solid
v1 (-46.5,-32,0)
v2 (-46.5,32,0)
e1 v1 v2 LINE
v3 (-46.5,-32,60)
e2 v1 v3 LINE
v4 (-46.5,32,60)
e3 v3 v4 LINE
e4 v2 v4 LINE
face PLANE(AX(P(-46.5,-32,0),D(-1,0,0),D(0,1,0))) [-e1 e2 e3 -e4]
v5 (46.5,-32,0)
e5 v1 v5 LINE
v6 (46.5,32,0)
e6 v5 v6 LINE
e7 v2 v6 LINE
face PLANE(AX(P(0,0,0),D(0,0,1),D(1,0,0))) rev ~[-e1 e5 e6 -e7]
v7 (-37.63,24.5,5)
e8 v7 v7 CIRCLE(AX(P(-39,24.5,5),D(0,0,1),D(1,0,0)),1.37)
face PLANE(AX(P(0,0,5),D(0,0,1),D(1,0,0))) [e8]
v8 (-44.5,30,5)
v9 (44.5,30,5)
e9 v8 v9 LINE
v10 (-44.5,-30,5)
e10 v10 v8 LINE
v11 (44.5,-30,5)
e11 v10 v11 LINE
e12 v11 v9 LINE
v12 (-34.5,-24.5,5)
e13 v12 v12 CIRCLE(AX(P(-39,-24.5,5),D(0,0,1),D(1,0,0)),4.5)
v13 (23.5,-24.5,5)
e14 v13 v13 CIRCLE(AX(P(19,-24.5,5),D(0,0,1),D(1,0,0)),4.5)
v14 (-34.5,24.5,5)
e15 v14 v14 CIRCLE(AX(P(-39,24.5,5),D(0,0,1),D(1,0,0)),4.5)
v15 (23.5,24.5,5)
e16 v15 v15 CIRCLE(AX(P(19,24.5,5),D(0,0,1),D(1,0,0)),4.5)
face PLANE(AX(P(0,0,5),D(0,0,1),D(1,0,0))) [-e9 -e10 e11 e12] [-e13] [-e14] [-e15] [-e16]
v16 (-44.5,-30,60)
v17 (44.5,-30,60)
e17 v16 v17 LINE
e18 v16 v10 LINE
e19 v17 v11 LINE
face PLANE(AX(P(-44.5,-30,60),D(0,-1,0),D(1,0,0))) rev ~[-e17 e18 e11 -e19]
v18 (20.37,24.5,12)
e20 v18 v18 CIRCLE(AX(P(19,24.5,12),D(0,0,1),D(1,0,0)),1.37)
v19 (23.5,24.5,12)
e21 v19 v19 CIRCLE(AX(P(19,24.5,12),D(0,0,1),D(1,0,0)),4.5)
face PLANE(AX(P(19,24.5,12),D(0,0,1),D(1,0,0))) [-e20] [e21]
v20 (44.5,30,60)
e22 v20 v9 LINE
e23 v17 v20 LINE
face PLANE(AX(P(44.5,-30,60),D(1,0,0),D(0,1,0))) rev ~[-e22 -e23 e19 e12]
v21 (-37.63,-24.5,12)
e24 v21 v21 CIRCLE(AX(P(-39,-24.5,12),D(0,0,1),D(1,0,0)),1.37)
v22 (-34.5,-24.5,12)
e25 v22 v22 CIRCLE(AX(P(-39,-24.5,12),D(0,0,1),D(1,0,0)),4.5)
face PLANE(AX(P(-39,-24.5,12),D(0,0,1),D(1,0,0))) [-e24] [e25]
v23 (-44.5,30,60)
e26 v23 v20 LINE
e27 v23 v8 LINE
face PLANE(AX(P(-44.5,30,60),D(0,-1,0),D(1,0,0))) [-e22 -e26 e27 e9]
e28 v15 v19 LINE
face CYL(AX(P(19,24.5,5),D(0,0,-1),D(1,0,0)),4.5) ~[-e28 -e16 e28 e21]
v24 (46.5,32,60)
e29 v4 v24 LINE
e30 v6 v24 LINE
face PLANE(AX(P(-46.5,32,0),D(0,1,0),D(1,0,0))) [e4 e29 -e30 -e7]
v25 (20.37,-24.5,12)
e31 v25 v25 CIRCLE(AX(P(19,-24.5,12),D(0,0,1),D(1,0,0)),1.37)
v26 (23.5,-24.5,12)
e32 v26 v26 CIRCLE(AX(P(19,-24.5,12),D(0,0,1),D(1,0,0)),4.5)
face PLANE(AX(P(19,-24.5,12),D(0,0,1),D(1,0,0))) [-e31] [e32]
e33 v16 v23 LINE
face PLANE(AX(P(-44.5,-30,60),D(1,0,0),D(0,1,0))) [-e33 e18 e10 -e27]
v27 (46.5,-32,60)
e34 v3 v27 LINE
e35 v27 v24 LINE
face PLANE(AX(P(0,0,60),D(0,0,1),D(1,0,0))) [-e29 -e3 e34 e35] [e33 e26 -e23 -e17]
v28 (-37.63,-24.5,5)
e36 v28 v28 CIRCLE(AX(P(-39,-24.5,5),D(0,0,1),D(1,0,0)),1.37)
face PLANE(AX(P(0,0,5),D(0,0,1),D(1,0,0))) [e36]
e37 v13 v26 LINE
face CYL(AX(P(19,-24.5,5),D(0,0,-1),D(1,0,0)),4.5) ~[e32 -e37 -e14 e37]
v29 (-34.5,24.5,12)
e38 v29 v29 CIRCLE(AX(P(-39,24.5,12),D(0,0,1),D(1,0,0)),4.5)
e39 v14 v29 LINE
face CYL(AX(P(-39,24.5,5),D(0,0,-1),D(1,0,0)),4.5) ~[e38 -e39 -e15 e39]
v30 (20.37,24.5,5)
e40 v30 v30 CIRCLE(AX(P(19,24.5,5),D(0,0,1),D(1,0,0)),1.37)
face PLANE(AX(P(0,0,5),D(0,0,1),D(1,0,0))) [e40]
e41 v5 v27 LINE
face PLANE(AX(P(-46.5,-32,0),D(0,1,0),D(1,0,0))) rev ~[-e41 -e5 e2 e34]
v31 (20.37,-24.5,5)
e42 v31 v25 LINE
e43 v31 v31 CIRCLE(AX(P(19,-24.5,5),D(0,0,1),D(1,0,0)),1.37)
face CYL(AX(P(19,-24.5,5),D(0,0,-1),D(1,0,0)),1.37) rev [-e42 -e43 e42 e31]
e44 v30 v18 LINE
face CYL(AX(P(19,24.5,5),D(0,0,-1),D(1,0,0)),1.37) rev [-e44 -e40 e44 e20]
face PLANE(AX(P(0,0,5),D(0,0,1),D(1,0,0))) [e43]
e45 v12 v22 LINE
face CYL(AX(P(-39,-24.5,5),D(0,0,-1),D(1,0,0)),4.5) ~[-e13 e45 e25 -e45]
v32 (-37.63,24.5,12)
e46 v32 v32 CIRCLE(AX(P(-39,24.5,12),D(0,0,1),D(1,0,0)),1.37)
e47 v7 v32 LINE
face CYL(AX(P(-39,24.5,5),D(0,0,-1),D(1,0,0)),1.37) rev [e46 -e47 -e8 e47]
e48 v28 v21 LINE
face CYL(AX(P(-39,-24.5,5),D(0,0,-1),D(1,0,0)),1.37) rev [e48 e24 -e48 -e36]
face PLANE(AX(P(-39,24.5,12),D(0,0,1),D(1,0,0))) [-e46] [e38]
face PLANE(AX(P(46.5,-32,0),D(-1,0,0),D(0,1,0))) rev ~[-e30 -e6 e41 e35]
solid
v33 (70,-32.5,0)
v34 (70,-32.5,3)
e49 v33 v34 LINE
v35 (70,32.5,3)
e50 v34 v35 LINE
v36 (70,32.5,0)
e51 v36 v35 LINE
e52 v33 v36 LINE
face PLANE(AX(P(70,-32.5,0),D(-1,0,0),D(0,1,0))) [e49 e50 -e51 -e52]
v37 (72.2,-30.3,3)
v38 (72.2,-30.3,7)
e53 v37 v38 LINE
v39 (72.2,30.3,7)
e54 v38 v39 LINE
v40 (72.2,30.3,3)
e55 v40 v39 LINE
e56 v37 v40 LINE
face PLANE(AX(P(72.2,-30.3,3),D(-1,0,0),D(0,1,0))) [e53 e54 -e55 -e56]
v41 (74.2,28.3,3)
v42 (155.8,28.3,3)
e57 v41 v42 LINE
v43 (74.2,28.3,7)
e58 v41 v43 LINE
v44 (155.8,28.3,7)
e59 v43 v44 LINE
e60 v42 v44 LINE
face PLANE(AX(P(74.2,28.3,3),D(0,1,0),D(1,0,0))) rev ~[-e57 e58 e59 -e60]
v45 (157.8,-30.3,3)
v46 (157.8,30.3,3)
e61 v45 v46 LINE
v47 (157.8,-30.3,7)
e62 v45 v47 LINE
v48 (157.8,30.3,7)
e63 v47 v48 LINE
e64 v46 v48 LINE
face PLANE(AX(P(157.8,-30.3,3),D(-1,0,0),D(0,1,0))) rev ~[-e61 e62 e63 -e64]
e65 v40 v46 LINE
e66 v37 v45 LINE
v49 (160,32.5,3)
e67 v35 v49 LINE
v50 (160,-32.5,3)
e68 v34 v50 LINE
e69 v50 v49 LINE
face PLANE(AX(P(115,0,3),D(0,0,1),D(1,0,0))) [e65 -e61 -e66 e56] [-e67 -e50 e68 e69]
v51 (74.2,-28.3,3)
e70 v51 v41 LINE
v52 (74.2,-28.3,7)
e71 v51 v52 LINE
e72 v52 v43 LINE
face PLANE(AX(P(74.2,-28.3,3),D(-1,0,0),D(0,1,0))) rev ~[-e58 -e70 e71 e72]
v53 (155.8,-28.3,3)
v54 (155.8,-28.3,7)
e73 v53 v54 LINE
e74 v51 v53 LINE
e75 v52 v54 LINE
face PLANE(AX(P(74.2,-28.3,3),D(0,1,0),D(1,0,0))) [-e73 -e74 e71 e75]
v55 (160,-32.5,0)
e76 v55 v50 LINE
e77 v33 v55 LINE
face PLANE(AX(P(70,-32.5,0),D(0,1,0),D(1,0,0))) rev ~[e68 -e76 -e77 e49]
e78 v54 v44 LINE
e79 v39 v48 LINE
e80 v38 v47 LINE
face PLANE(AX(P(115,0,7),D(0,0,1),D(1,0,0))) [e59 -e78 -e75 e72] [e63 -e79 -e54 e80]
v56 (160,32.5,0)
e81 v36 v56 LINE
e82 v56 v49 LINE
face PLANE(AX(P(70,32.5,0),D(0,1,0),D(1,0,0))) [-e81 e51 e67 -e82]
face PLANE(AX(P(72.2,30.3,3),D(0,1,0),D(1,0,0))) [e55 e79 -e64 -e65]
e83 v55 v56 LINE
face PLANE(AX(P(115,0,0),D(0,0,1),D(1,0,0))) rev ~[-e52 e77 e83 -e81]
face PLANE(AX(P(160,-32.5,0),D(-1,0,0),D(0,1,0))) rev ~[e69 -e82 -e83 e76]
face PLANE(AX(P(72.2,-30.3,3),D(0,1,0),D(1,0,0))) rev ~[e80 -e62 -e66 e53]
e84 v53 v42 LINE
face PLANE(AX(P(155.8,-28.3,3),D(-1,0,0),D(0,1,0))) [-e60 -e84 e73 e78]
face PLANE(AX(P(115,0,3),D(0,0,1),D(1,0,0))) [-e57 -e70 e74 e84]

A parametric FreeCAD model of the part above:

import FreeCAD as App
import Part
import Sketcher

V = App.Vector
Q = App.Units.Quantity

doc = App.newDocument("Part")
params = doc.addObject("Spreadsheet::Sheet", "Params")
for row, (alias, value) in enumerate([
    ("sketch1_width", "93 mm"),
    ("sketch1_height", "64 mm"),
    ("pad1_length", "60 mm"),
    ("sketch2_width", "89 mm"),
    ("sketch2_height", "60 mm"),
    ("pocket1_length", "55 mm"),
    ("sketch3_diameter", "9 mm"),
    ("sketch3_diameter2", "2.74 mm"),
    ("pad2_length", "7 mm"),
    ("sketch4_width", "90 mm"),
    ("sketch4_height", "65 mm"),
    ("pad3_length", "3 mm"),
    ("sketch5_width", "85.6 mm"),
    ("sketch5_width2", "81.6 mm"),
    ("sketch5_height", "60.6 mm"),
    ("sketch5_height2", "56.6 mm"),
    ("pad4_length", "4 mm"),
], start=1):
    params.set(f"A{row}", alias)
    params.set(f"B{row}", "=" + value)
    params.setAlias(f"B{row}", alias)

body = doc.addObject("PartDesign::Body", "Body")

sketch1 = doc.addObject("Sketcher::SketchObject", "Sketch")
body.addObject(sketch1)
sketch1.AttachmentSupport = (doc.XY_Plane, [""])
sketch1.MapMode = "FlatFace"
sketch1.addGeometry([
    Part.LineSegment(V(-46, 32, 0), V(-46, -32, 0)),
    Part.LineSegment(V(-46, -32, 0), V(46, -32, 0)),
    Part.LineSegment(V(46, -32, 0), V(46, 32, 0)),
    Part.LineSegment(V(46, 32, 0), V(-46, 32, 0)),
], False)
sketch1.addConstraint([
    Sketcher.Constraint("Coincident", 0, 2, 1, 1),
    Sketcher.Constraint("Coincident", 1, 2, 2, 1),
    Sketcher.Constraint("Coincident", 2, 2, 3, 1),
    Sketcher.Constraint("Coincident", 3, 2, 0, 1),
    Sketcher.Constraint("Vertical", 0),
    Sketcher.Constraint("Horizontal", 1),
    Sketcher.Constraint("Vertical", 2),
    Sketcher.Constraint("Horizontal", 3),
    Sketcher.Constraint("Symmetric", 0, 2, 2, 2, -1, 1),
    Sketcher.Constraint("DistanceX", 1, 1, 1, 2, Q("93 mm")),
    Sketcher.Constraint("DistanceY", 0, 2, 0, 1, Q("64 mm")),
])
sketch1.setExpression("Constraints[9]", "Params.sketch1_width")
sketch1.setExpression("Constraints[10]", "Params.sketch1_height")
pad1 = doc.addObject("PartDesign::Pad", "Pad")
body.addObject(pad1)
pad1.Profile = sketch1
pad1.setExpression("Length", "Params.pad1_length")

sketch2 = doc.addObject("Sketcher::SketchObject", "Sketch001")
body.addObject(sketch2)
sketch2.AttachmentSupport = (doc.XY_Plane, [""])
sketch2.MapMode = "FlatFace"
sketch2.AttachmentOffset = App.Placement(V(0, 0, 60), App.Rotation())
sketch2.addGeometry([
    Part.LineSegment(V(-44, 30, 0), V(-44, -30, 0)),
    Part.LineSegment(V(-44, -30, 0), V(44, -30, 0)),
    Part.LineSegment(V(44, -30, 0), V(44, 30, 0)),
    Part.LineSegment(V(44, 30, 0), V(-44, 30, 0)),
], False)
sketch2.addConstraint([
    Sketcher.Constraint("Coincident", 0, 2, 1, 1),
    Sketcher.Constraint("Coincident", 1, 2, 2, 1),
    Sketcher.Constraint("Coincident", 2, 2, 3, 1),
    Sketcher.Constraint("Coincident", 3, 2, 0, 1),
    Sketcher.Constraint("Vertical", 0),
    Sketcher.Constraint("Horizontal", 1),
    Sketcher.Constraint("Vertical", 2),
    Sketcher.Constraint("Horizontal", 3),
    Sketcher.Constraint("Symmetric", 0, 2, 2, 2, -1, 1),
    Sketcher.Constraint("DistanceX", 1, 1, 1, 2, Q("89 mm")),
    Sketcher.Constraint("DistanceY", 0, 2, 0, 1, Q("60 mm")),
])
sketch2.setExpression("Constraints[9]", "Params.sketch2_width")
sketch2.setExpression("Constraints[10]", "Params.sketch2_height")
pocket1 = doc.addObject("PartDesign::Pocket", "Pocket")
body.addObject(pocket1)
pocket1.Profile = sketch2
pocket1.setExpression("Length", "Params.pocket1_length")

sketch3 = doc.addObject("Sketcher::SketchObject", "Sketch002")
body.addObject(sketch3)
sketch3.AttachmentSupport = (doc.XY_Plane, [""])
sketch3.MapMode = "FlatFace"
sketch3.AttachmentOffset = App.Placement(V(0, 0, 5), App.Rotation())
sketch3.addGeometry([
    Part.Circle(V(-39, 24.5, 0), V(0, 0, 1), 4.5),
    Part.Circle(V(-39, 24.5, 0), V(0, 0, 1), 1.4),
    Part.Circle(V(19, 24.5, 0), V(0, 0, 1), 4.5),
    Part.Circle(V(19, 24.5, 0), V(0, 0, 1), 1.4),
    Part.Circle(V(-39, -24.5, 0), V(0, 0, 1), 4.5),
    Part.Circle(V(-39, -24.5, 0), V(0, 0, 1), 1.4),
    Part.Circle(V(19, -24.5, 0), V(0, 0, 1), 4.5),
    Part.Circle(V(19, -24.5, 0), V(0, 0, 1), 1.4),
], False)
sketch3.addConstraint([
    Sketcher.Constraint("Coincident", 1, 3, 0, 3),
    Sketcher.Constraint("Coincident", 3, 3, 2, 3),
    Sketcher.Constraint("Coincident", 5, 3, 4, 3),
    Sketcher.Constraint("Coincident", 7, 3, 6, 3),
    Sketcher.Constraint("Equal", 0, 2),
    Sketcher.Constraint("Equal", 1, 3),
    Sketcher.Constraint("Equal", 2, 4),
    Sketcher.Constraint("Equal", 3, 5),
    Sketcher.Constraint("Equal", 4, 6),
    Sketcher.Constraint("Equal", 5, 7),
    Sketcher.Constraint("Symmetric", 0, 3, 4, 3, -1),
    Sketcher.Constraint("Symmetric", 2, 3, 6, 3, -1),
    Sketcher.Constraint("Horizontal", 1, 3, 2, 3),
    Sketcher.Constraint("Diameter", 0, Q("9 mm")),
    Sketcher.Constraint("Diameter", 1, Q("2.74 mm")),
    Sketcher.Constraint("DistanceX", 0, 3, -1, 1, Q("39 mm")),
    Sketcher.Constraint("DistanceX", -1, 1, 2, 3, Q("19 mm")),
    Sketcher.Constraint("DistanceY", 4, 3, 0, 3, Q("49 mm")),
])
sketch3.setExpression("Constraints[13]", "Params.sketch3_diameter")
sketch3.setExpression("Constraints[14]", "Params.sketch3_diameter2")
pad2 = doc.addObject("PartDesign::Pad", "Pad001")
body.addObject(pad2)
pad2.Profile = sketch3
pad2.setExpression("Length", "Params.pad2_length")
body2 = doc.addObject("PartDesign::Body", "Body001")

sketch4 = doc.addObject("Sketcher::SketchObject", "Sketch003")
body2.addObject(sketch4)
sketch4.AttachmentSupport = (doc.getObject("XY_Plane001"), [""])
sketch4.MapMode = "FlatFace"
sketch4.addGeometry([
    Part.LineSegment(V(70, 32, 0), V(70, -32, 0)),
    Part.LineSegment(V(70, -32, 0), V(160, -32, 0)),
    Part.LineSegment(V(160, -32, 0), V(160, 32, 0)),
    Part.LineSegment(V(160, 32, 0), V(70, 32, 0)),
], False)
sketch4.addConstraint([
    Sketcher.Constraint("Coincident", 0, 2, 1, 1),
    Sketcher.Constraint("Coincident", 1, 2, 2, 1),
    Sketcher.Constraint("Coincident", 2, 2, 3, 1),
    Sketcher.Constraint("Coincident", 3, 2, 0, 1),
    Sketcher.Constraint("Vertical", 0),
    Sketcher.Constraint("Horizontal", 1),
    Sketcher.Constraint("Vertical", 2),
    Sketcher.Constraint("Horizontal", 3),
    Sketcher.Constraint("DistanceX", 1, 1, 1, 2, Q("90 mm")),
    Sketcher.Constraint("DistanceY", 0, 2, 0, 1, Q("65 mm")),
    Sketcher.Constraint("DistanceX", -1, 1, 0, 2, Q("70 mm")),
    Sketcher.Constraint("DistanceY", 0, 2, -1, 1, Q("32.5 mm")),
])
sketch4.setExpression("Constraints[8]", "Params.sketch4_width")
sketch4.setExpression("Constraints[9]", "Params.sketch4_height")
pad3 = doc.addObject("PartDesign::Pad", "Pad002")
body2.addObject(pad3)
pad3.Profile = sketch4
pad3.setExpression("Length", "Params.pad3_length")

sketch5 = doc.addObject("Sketcher::SketchObject", "Sketch004")
body2.addObject(sketch5)
sketch5.AttachmentSupport = (doc.getObject("XY_Plane001"), [""])
sketch5.MapMode = "FlatFace"
sketch5.AttachmentOffset = App.Placement(V(0, 0, 3), App.Rotation())
sketch5.addGeometry([
    Part.LineSegment(V(72, 30, 0), V(72, -30, 0)),
    Part.LineSegment(V(72, -30, 0), V(158, -30, 0)),
    Part.LineSegment(V(158, -30, 0), V(158, 30, 0)),
    Part.LineSegment(V(158, 30, 0), V(72, 30, 0)),
    Part.LineSegment(V(156, -28, 0), V(74, -28, 0)),
    Part.LineSegment(V(74, -28, 0), V(74, 28, 0)),
    Part.LineSegment(V(74, 28, 0), V(156, 28, 0)),
    Part.LineSegment(V(156, 28, 0), V(156, -28, 0)),
], False)
sketch5.addConstraint([
    Sketcher.Constraint("Coincident", 0, 2, 1, 1),
    Sketcher.Constraint("Coincident", 1, 2, 2, 1),
    Sketcher.Constraint("Coincident", 2, 2, 3, 1),
    Sketcher.Constraint("Coincident", 3, 2, 0, 1),
    Sketcher.Constraint("Coincident", 4, 2, 5, 1),
    Sketcher.Constraint("Coincident", 5, 2, 6, 1),
    Sketcher.Constraint("Coincident", 6, 2, 7, 1),
    Sketcher.Constraint("Coincident", 7, 2, 4, 1),
    Sketcher.Constraint("Vertical", 0),
    Sketcher.Constraint("Horizontal", 1),
    Sketcher.Constraint("Vertical", 2),
    Sketcher.Constraint("Horizontal", 3),
    Sketcher.Constraint("Horizontal", 4),
    Sketcher.Constraint("Vertical", 5),
    Sketcher.Constraint("Horizontal", 6),
    Sketcher.Constraint("Vertical", 7),
    Sketcher.Constraint("DistanceX", 1, 1, 1, 2, Q("85.6 mm")),
    Sketcher.Constraint("DistanceX", 4, 2, 4, 1, Q("81.6 mm")),
    Sketcher.Constraint("DistanceY", 0, 2, 0, 1, Q("60.6 mm")),
    Sketcher.Constraint("DistanceY", 5, 1, 5, 2, Q("56.6 mm")),
    Sketcher.Constraint("DistanceX", 0, 2, 4, 2, Q("2 mm")),
    Sketcher.Constraint("DistanceY", 0, 2, 4, 2, Q("2 mm")),
    Sketcher.Constraint("DistanceX", -1, 1, 0, 2, Q("72.2 mm")),
    Sketcher.Constraint("DistanceY", 0, 2, -1, 1, Q("30.3 mm")),
])
sketch5.setExpression("Constraints[16]", "Params.sketch5_width")
sketch5.setExpression("Constraints[17]", "Params.sketch5_width2")
sketch5.setExpression("Constraints[18]", "Params.sketch5_height")
sketch5.setExpression("Constraints[19]", "Params.sketch5_height2")
pad4 = doc.addObject("PartDesign::Pad", "Pad003")
body2.addObject(pad4)
pad4.Profile = sketch5
pad4.setExpression("Length", "Params.pad4_length")

doc.recompute()
